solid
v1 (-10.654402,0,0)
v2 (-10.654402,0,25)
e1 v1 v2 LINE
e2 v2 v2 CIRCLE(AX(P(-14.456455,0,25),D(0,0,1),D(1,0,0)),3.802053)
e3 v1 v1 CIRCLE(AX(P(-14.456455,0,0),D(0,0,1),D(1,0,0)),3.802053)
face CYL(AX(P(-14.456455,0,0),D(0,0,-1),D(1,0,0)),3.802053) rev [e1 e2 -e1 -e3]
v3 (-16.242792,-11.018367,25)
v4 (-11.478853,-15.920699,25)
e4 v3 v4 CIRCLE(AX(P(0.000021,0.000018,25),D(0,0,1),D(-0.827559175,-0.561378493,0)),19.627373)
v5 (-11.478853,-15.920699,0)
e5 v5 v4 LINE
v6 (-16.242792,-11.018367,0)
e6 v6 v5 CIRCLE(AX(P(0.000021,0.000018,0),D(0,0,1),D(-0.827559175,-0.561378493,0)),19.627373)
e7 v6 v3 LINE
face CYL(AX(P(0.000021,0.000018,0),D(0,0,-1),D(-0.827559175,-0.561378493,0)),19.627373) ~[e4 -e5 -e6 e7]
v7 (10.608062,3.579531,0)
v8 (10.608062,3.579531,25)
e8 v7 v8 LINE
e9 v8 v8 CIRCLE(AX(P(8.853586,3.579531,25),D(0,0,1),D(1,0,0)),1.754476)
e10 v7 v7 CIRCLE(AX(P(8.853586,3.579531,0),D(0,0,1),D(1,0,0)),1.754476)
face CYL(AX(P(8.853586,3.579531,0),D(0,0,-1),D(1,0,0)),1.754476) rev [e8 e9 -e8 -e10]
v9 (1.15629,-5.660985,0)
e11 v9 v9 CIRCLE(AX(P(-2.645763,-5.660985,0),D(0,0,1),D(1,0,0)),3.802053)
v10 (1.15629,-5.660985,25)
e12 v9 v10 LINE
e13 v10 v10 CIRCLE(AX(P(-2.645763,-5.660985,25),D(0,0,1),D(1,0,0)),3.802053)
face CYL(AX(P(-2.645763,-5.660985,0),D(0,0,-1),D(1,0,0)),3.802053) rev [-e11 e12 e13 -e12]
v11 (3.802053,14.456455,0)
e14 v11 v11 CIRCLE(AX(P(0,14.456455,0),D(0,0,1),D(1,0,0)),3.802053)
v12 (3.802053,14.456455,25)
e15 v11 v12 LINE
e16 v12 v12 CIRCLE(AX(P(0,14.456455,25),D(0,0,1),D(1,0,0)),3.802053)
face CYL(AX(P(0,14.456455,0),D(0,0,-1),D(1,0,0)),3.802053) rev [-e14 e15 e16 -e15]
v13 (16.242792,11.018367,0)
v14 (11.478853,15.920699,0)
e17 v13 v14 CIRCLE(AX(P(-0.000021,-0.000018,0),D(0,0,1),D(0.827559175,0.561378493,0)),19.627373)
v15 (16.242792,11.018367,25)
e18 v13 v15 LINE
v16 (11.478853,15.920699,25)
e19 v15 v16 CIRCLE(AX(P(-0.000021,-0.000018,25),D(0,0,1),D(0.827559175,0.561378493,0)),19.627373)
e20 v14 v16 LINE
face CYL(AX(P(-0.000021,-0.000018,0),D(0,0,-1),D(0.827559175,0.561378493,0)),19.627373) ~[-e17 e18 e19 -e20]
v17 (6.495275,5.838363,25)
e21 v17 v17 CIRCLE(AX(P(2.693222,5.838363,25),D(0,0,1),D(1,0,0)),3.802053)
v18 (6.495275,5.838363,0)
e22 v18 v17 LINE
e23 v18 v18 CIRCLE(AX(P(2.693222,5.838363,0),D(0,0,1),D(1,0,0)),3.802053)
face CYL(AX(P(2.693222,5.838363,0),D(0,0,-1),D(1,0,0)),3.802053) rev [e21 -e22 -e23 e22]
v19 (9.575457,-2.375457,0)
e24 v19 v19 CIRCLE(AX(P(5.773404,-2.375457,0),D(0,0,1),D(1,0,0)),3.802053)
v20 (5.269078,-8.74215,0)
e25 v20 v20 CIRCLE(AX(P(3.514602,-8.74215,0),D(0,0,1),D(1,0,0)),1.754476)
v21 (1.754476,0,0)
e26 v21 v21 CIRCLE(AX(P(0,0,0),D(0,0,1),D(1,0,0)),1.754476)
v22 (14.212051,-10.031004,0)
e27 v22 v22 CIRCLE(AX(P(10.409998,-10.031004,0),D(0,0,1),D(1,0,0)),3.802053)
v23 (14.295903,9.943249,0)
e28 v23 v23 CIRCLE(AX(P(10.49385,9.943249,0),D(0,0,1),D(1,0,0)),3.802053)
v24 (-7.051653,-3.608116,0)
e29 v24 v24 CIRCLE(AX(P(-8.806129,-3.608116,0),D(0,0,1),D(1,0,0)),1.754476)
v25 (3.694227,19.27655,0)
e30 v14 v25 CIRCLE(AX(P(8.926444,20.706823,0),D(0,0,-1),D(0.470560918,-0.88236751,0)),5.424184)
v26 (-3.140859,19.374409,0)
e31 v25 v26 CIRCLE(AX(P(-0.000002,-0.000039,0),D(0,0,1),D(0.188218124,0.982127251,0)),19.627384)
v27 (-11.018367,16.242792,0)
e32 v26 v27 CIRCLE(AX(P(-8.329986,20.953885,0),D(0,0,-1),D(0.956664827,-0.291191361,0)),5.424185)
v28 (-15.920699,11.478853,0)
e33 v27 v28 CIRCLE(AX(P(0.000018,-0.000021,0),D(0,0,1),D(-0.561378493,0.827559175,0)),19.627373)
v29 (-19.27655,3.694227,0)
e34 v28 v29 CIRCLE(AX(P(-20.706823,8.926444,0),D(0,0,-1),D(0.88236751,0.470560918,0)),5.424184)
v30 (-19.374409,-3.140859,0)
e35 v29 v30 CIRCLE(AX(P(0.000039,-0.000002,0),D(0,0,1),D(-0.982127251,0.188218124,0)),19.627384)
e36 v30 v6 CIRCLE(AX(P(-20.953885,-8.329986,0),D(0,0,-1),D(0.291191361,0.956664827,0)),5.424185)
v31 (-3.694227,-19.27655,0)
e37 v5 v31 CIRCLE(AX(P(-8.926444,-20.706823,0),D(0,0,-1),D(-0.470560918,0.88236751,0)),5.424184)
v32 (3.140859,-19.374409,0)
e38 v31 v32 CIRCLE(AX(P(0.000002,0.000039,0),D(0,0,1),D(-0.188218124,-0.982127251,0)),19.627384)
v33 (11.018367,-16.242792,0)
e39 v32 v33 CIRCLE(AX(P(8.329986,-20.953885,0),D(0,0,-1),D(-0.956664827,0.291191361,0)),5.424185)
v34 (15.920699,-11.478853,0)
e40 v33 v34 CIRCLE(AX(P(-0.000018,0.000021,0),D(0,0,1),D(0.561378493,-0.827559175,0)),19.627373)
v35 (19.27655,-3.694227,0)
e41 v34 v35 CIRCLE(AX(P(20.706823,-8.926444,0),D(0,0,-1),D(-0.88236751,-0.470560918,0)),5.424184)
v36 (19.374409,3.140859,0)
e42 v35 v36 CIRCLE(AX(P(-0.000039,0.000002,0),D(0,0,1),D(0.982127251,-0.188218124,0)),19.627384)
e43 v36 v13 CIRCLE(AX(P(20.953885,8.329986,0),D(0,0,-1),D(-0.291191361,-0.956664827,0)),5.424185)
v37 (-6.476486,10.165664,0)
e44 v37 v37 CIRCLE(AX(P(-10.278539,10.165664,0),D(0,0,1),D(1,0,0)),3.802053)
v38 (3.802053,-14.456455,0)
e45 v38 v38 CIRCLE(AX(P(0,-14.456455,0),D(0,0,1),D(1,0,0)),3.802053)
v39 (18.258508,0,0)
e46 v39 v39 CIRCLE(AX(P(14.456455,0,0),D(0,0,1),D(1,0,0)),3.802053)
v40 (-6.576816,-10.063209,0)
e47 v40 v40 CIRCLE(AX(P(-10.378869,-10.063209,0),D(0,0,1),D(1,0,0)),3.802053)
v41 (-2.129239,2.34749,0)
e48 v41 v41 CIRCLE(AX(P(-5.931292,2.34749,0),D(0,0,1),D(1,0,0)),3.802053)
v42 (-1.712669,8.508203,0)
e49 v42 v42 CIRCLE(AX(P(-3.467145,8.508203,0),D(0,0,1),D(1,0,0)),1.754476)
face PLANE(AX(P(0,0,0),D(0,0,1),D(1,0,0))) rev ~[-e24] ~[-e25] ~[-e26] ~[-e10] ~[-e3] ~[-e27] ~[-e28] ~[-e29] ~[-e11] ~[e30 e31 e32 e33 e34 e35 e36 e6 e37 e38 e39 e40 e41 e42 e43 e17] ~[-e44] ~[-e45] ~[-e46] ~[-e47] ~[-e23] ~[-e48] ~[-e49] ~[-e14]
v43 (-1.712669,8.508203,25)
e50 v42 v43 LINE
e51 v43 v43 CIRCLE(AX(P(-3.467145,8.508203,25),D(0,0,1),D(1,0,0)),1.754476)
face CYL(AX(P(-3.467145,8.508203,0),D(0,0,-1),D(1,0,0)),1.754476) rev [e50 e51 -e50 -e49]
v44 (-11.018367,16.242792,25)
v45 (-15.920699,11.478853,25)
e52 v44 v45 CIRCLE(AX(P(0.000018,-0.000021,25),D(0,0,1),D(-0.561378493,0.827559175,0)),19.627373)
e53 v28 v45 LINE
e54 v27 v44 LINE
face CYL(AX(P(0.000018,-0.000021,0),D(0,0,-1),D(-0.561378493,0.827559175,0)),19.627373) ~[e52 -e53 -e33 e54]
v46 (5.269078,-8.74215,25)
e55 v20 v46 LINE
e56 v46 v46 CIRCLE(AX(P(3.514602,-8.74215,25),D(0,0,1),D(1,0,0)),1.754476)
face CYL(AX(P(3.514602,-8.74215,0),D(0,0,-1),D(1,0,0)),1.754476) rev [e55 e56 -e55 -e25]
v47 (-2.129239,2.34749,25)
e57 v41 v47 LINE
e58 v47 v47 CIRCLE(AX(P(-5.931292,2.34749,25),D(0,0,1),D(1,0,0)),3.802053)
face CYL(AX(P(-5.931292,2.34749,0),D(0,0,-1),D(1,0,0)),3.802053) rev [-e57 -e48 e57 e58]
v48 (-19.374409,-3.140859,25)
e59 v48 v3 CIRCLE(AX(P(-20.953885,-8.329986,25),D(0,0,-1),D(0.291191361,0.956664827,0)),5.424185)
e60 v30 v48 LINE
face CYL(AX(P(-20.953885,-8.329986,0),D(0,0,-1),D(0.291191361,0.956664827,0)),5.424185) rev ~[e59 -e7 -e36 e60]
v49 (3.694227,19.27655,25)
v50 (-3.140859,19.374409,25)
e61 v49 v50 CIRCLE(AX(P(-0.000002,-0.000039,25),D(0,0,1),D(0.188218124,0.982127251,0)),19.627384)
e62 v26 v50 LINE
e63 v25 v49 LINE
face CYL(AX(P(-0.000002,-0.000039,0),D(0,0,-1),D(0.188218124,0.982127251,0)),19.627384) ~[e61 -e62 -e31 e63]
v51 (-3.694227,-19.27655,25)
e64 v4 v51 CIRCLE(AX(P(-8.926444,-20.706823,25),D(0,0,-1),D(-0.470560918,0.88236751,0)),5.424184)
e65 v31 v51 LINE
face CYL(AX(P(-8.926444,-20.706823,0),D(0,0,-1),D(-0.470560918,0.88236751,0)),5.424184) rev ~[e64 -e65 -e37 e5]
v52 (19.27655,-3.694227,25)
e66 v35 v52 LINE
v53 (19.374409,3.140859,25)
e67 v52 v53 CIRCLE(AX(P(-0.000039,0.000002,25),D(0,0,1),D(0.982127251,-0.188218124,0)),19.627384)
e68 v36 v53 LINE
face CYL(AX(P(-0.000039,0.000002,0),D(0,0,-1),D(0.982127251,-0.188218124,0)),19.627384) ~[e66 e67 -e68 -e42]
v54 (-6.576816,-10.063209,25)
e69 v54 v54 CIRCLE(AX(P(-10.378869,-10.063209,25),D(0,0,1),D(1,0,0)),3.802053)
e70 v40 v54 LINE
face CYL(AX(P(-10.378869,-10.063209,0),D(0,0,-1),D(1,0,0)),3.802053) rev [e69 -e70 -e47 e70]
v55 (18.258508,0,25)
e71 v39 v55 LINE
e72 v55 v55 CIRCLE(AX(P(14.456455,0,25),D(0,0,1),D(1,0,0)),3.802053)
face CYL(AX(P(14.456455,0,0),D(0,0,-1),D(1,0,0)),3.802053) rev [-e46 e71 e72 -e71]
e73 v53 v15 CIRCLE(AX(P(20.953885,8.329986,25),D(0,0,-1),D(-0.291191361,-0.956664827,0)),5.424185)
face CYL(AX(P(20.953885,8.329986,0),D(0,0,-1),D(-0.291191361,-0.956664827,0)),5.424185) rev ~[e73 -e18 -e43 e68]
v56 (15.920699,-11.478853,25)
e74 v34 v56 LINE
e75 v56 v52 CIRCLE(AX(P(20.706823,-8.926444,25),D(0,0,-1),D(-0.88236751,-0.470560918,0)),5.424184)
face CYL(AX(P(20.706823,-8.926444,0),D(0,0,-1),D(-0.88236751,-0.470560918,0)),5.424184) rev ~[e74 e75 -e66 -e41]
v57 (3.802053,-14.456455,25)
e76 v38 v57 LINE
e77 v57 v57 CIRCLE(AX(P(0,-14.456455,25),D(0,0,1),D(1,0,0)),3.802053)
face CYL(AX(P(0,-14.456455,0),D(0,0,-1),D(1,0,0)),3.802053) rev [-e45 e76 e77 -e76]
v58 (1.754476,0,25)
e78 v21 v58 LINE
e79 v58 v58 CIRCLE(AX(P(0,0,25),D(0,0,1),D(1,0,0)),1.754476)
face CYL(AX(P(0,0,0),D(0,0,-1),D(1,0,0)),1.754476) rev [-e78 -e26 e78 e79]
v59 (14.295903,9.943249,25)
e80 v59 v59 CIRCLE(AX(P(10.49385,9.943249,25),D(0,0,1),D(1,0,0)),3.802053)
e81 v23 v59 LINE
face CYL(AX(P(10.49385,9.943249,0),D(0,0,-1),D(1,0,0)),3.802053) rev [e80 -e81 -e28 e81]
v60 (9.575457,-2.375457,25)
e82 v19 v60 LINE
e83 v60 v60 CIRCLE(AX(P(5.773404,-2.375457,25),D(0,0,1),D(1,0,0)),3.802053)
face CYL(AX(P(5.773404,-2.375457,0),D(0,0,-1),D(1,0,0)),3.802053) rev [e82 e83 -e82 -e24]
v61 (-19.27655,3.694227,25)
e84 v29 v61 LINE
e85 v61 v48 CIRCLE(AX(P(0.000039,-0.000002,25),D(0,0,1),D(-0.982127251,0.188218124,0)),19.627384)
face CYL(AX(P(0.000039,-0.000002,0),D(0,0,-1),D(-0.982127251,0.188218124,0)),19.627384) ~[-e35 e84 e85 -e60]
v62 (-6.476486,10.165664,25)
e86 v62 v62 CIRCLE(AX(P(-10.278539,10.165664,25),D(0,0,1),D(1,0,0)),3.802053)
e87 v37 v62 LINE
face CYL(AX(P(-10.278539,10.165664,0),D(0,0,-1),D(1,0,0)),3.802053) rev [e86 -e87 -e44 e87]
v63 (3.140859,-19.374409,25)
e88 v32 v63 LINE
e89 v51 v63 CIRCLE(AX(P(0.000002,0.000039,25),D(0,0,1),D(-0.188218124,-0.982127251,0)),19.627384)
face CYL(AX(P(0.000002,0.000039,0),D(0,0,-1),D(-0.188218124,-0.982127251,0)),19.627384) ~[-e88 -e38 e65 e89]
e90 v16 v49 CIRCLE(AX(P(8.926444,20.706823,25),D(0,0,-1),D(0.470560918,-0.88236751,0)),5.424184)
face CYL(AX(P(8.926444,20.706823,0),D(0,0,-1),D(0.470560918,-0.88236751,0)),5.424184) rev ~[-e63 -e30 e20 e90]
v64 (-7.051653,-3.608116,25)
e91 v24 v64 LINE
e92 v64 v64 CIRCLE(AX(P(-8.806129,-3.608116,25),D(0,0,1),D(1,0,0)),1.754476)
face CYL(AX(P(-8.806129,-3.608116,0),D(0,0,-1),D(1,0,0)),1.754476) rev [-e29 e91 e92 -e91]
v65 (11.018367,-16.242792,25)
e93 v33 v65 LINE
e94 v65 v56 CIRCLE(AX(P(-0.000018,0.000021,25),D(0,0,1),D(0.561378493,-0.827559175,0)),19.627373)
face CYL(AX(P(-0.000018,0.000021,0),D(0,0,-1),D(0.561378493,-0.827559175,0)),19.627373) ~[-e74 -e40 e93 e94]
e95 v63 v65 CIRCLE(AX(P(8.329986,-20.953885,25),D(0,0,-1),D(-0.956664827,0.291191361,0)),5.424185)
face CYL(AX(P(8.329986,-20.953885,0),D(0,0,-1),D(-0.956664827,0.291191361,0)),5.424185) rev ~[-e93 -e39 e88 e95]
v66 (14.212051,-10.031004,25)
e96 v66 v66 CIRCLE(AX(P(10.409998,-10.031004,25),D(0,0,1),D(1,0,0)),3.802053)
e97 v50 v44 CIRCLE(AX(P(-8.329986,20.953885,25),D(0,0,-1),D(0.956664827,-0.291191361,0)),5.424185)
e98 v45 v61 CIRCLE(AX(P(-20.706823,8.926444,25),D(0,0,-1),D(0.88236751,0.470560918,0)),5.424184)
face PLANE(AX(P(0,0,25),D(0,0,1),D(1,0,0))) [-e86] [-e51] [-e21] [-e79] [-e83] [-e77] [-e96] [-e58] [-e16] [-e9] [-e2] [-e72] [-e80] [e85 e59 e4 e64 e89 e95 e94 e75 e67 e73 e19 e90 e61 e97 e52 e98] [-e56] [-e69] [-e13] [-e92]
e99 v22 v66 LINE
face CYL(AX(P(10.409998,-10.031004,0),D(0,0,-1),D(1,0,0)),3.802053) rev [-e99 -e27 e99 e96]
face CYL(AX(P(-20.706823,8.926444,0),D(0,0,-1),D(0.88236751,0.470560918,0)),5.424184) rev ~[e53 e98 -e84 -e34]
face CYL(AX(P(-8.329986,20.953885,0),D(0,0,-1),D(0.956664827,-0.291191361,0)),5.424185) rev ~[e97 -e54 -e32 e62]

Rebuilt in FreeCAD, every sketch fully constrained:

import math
import FreeCAD as App
import Part
import Sketcher
from FreeCAD import Vector
Q = App.Units.Quantity

doc = App.newDocument("Part")
body = doc.addObject("PartDesign::Body", "Body")

sketch1 = doc.addObject("Sketcher::SketchObject", "Sketch")
body.addObject(sketch1)
sketch1.AttachmentSupport = (doc.XY_Plane, [""])
sketch1.MapMode = "FlatFace"
sketch1.addGeometry([
    Part.ArcOfCircle(Part.Circle(Vector(8.926444, 20.706823, 0), Vector(0, 0, 1), 5.424184), math.radians(-164.711204), math.radians(-61.929287)),
    Part.ArcOfCircle(Part.Circle(Vector(-0.000002, -0.000039, 0), Vector(0, 0, 1), 19.627384), math.radians(79.151186), math.radians(99.208301)),
    Part.ArcOfCircle(Part.Circle(Vector(-8.329986, 20.953885, 0), Vector(0, 0, 1), 5.424185), math.radians(-119.7112), math.radians(-16.929295)),
    Part.ArcOfCircle(Part.Circle(Vector(0.000018, -0.000021, 0), Vector(0, 0, 1), 19.627373), math.radians(124.151183), math.radians(144.208309)),
    Part.ArcOfCircle(Part.Circle(Vector(-20.706823, 8.926444, 0), Vector(0, 0, 1), 5.424184), math.radians(-74.711204), math.radians(28.070713)),
    Part.ArcOfCircle(Part.Circle(Vector(0.000039, -0.000002, 0), Vector(0, 0, 1), 19.627384), math.radians(169.151186), math.radians(189.208301)),
    Part.ArcOfCircle(Part.Circle(Vector(-20.953885, -8.329986, 0), Vector(0, 0, 1), 5.424185), math.radians(-29.7112), math.radians(73.070705)),
    Part.ArcOfCircle(Part.Circle(Vector(0.000021, 0.000018, 0), Vector(0, 0, 1), 19.627373), math.radians(-145.848817), math.radians(-125.791691)),
    Part.ArcOfCircle(Part.Circle(Vector(-8.926444, -20.706823, 0), Vector(0, 0, 1), 5.424184), math.radians(15.288796), math.radians(118.070713)),
    Part.ArcOfCircle(Part.Circle(Vector(0.000002, 0.000039, 0), Vector(0, 0, 1), 19.627384), math.radians(-100.848814), math.radians(-80.791699)),
    Part.ArcOfCircle(Part.Circle(Vector(8.329986, -20.953885, 0), Vector(0, 0, 1), 5.424185), math.radians(60.2888), math.radians(163.070705)),
    Part.ArcOfCircle(Part.Circle(Vector(-0.000018, 0.000021, 0), Vector(0, 0, 1), 19.627373), math.radians(-55.848817), math.radians(-35.791691)),
    Part.ArcOfCircle(Part.Circle(Vector(20.706823, -8.926444, 0), Vector(0, 0, 1), 5.424184), math.radians(105.288796), math.radians(208.070713)),
    Part.ArcOfCircle(Part.Circle(Vector(-0.000039, 0.000002, 0), Vector(0, 0, 1), 19.627384), math.radians(-10.848814), math.radians(9.208301)),
    Part.ArcOfCircle(Part.Circle(Vector(20.953885, 8.329986, 0), Vector(0, 0, 1), 5.424185), math.radians(150.2888), math.radians(253.070705)),
    Part.ArcOfCircle(Part.Circle(Vector(-0.000021, -0.000018, 0), Vector(0, 0, 1), 19.627373), math.radians(34.151183), math.radians(54.208309)),
    Part.Circle(Vector(-10.378869, -10.063209, 0), Vector(0, 0, 1), 3.802053),
    Part.Circle(Vector(-2.645763, -5.660985, 0), Vector(0, 0, 1), 3.802053),
    Part.Circle(Vector(-8.806129, -3.608116, 0), Vector(0, 0, 1), 1.754476),
    Part.Circle(Vector(0, -14.456455, 0), Vector(0, 0, 1), 3.802053),
    Part.Circle(Vector(10.409998, -10.031004, 0), Vector(0, 0, 1), 3.802053),
    Part.Circle(Vector(3.514602, -8.74215, 0), Vector(0, 0, 1), 1.754476),
    Part.Circle(Vector(5.773404, -2.375457, 0), Vector(0, 0, 1), 3.802053),
    Part.Circle(Vector(-14.456455, 0, 0), Vector(0, 0, 1), 3.802053),
    Part.Circle(Vector(-5.931292, 2.34749, 0), Vector(0, 0, 1), 3.802053),
    Part.Circle(Vector(-3.467145, 8.508203, 0), Vector(0, 0, 1), 1.754476),
    Part.Circle(Vector(-10.278539, 10.165664, 0), Vector(0, 0, 1), 3.802053),
    Part.Circle(Vector(0, 0, 0), Vector(0, 0, 1), 1.754476),
    Part.Circle(Vector(8.853586, 3.579531, 0), Vector(0, 0, 1), 1.754476),
    Part.Circle(Vector(2.693222, 5.838363, 0), Vector(0, 0, 1), 3.802053),
    Part.Circle(Vector(14.456455, 0, 0), Vector(0, 0, 1), 3.802053),
    Part.Circle(Vector(0, 14.456455, 0), Vector(0, 0, 1), 3.802053),
    Part.Circle(Vector(10.49385, 9.943249, 0), Vector(0, 0, 1), 3.802053),
], False)
sketch1.addConstraint([
    Sketcher.Constraint("Coincident", 0, 1, 1, 1),
    Sketcher.Constraint("Coincident", 1, 2, 2, 2),
    Sketcher.Constraint("Coincident", 2, 1, 3, 1),
    Sketcher.Constraint("Coincident", 3, 2, 4, 2),
    Sketcher.Constraint("Coincident", 4, 1, 5, 1),
    Sketcher.Constraint("Coincident", 5, 2, 6, 2),
    Sketcher.Constraint("Coincident", 6, 1, 7, 1),
    Sketcher.Constraint("Coincident", 7, 2, 8, 2),
    Sketcher.Constraint("Coincident", 8, 1, 9, 1),
    Sketcher.Constraint("Coincident", 9, 2, 10, 2),
    Sketcher.Constraint("Coincident", 10, 1, 11, 1),
    Sketcher.Constraint("Coincident", 11, 2, 12, 2),
    Sketcher.Constraint("Coincident", 12, 1, 13, 1),
    Sketcher.Constraint("Coincident", 13, 2, 14, 2),
    Sketcher.Constraint("Coincident", 14, 1, 15, 1),
    Sketcher.Constraint("Coincident", 15, 2, 0, 2),
    Sketcher.Constraint("Coincident", 27, 3, -1, 1),
    Sketcher.Constraint("Equal", 0, 2),
    Sketcher.Constraint("Equal", 2, 4),
    Sketcher.Constraint("Equal", 1, 5),
    Sketcher.Constraint("Equal", 4, 6),
    Sketcher.Constraint("Equal", 3, 7),
    Sketcher.Constraint("Equal", 6, 8),
    Sketcher.Constraint("Equal", 5, 9),
    Sketcher.Constraint("Equal", 8, 10),
    Sketcher.Constraint("Equal", 7, 11),
    Sketcher.Constraint("Equal", 10, 12),
    Sketcher.Constraint("Equal", 9, 13),
    Sketcher.Constraint("Equal", 12, 14),
    Sketcher.Constraint("Equal", 11, 15),
    Sketcher.Constraint("Equal", 16, 17),
    Sketcher.Constraint("Equal", 17, 19),
    Sketcher.Constraint("Equal", 19, 20),
    Sketcher.Constraint("Equal", 18, 21),
    Sketcher.Constraint("Equal", 20, 22),
    Sketcher.Constraint("Equal", 22, 23),
    Sketcher.Constraint("Equal", 23, 24),
    Sketcher.Constraint("Equal", 21, 25),
    Sketcher.Constraint("Equal", 24, 26),
    Sketcher.Constraint("Equal", 25, 27),
    Sketcher.Constraint("Equal", 27, 28),
    Sketcher.Constraint("Equal", 26, 29),
    Sketcher.Constraint("Equal", 29, 30),
    Sketcher.Constraint("Equal", 30, 31),
    Sketcher.Constraint("Equal", 31, 32),
    Sketcher.Constraint("Symmetric", 0, 3, 8, 3, -1, 1),
    Sketcher.Constraint("Symmetric", 1, 3, 9, 3, -1, 1),
    Sketcher.Constraint("Symmetric", 2, 3, 10, 3, -1, 1),
    Sketcher.Constraint("Symmetric", 3, 3, 11, 3, -1, 1),
    Sketcher.Constraint("Symmetric", 4, 3, 12, 3, -1, 1),
    Sketcher.Constraint("Symmetric", 5, 3, 13, 3, -1, 1),
    Sketcher.Constraint("Symmetric", 6, 3, 14, 3, -1, 1),
    Sketcher.Constraint("Symmetric", 7, 3, 15, 3, -1, 1),
    Sketcher.Constraint("Symmetric", 23, 3, 30, 3, -1, 1),
    Sketcher.Constraint("Symmetric", 19, 3, 31, 3, -1, 1),
    Sketcher.Constraint("Symmetric", 7, 3, 11, 3, -2),
    Sketcher.Constraint("PointOnObject", 19, 3, -2),
    Sketcher.Constraint("PointOnObject", 23, 3, -1),
    Sketcher.Constraint("Diameter", 18, Q("3.508952 mm")),
    Sketcher.Constraint("Diameter", 16, Q("7.604106 mm")),
    Sketcher.Constraint("Radius", 0, Q("5.424184 mm")),
    Sketcher.Constraint("Radius", 1, Q("19.627384 mm")),
    Sketcher.Constraint("Radius", 3, Q("19.627373 mm")),
    Sketcher.Constraint("DistanceY", 20, 3, 5, 3, Q("10.031002 mm")),
    Sketcher.Constraint("DistanceX", -1, 1, 21, 3, Q("3.514602 mm")),
    Sketcher.Constraint("DistanceX", 3, 2, -1, 1, Q("15.920699 mm")),
    Sketcher.Constraint("DistanceY", 7, 2, -1, 1, Q("15.920699 mm")),
    Sketcher.Constraint("DistanceX", 6, 3, 2, 3, Q("12.623899 mm")),
    Sketcher.Constraint("DistanceY", 13, 3, 25, 3, Q("8.508201 mm")),
    Sketcher.Constraint("DistanceX", 7, 3, 29, 3, Q("2.693201 mm")),
    Sketcher.Constraint("DistanceY", 32, 3, 0, 1, Q("9.333301 mm")),
    Sketcher.Constraint("DistanceX", 20, 3, 11, 2, Q("5.510701 mm")),
    Sketcher.Constraint("DistanceX", 16, 3, -1, 1, Q("10.378869 mm")),
    Sketcher.Constraint("DistanceY", 16, 3, -1, 1, Q("10.063209 mm")),
    Sketcher.Constraint("DistanceX", 18, 3, -1, 1, Q("8.806129 mm")),
    Sketcher.Constraint("DistanceY", 21, 3, -1, 1, Q("8.74215 mm")),
    Sketcher.Constraint("DistanceY", -1, 1, 24, 3, Q("2.34749 mm")),
    Sketcher.Constraint("DistanceX", 26, 3, -1, 1, Q("10.278539 mm")),
    Sketcher.Constraint("DistanceY", -1, 1, 28, 3, Q("3.579531 mm")),
    Sketcher.Constraint("DistanceX", -1, 1, 29, 3, Q("2.693222 mm")),
    Sketcher.Constraint("DistanceX", -1, 1, 32, 3, Q("10.49385 mm")),
    Sketcher.Constraint("DistanceY", -1, 1, 32, 3, Q("9.943249 mm")),
    Sketcher.Constraint("DistanceX", 1, 2, -1, 1, Q("3.140859 mm")),
    Sketcher.Constraint("DistanceY", -1, 1, 1, 2, Q("19.374409 mm")),
    Sketcher.Constraint("DistanceY", -1, 1, 2, 1, Q("16.242792 mm")),
    Sketcher.Constraint("DistanceX", 4, 1, -1, 1, Q("19.27655 mm")),
    Sketcher.Constraint("DistanceX", 5, 2, -1, 1, Q("19.374409 mm")),
    Sketcher.Constraint("DistanceY", 5, 2, -1, 1, Q("3.140859 mm")),
    Sketcher.Constraint("DistanceX", 6, 1, -1, 1, Q("16.242792 mm")),
    Sketcher.Constraint("DistanceX", 2, 3, 0, 3, Q("17.25643 mm")),
    Sketcher.Constraint("DistanceY", 4, 3, 2, 3, Q("12.027441 mm")),
    Sketcher.Constraint("DistanceX", 17, 3, 1, 3, Q("2.645761 mm")),
    Sketcher.Constraint("DistanceY", 17, 3, 18, 3, Q("2.052869 mm")),
    Sketcher.Constraint("DistanceY", 18, 3, 13, 3, Q("3.608118 mm")),
    Sketcher.Constraint("DistanceY", 19, 3, 17, 3, Q("8.79547 mm")),
    Sketcher.Constraint("DistanceY", 22, 3, 15, 3, Q("2.375439 mm")),
    Sketcher.Constraint("DistanceX", 6, 3, 23, 3, Q("6.49743 mm")),
    Sketcher.Constraint("DistanceX", 24, 3, 15, 3, Q("5.931271 mm")),
    Sketcher.Constraint("DistanceY", 25, 3, 26, 3, Q("1.657461 mm")),
    Sketcher.Constraint("DistanceX", 22, 3, 28, 3, Q("3.080182 mm")),
    Sketcher.Constraint("DistanceX", 28, 3, 30, 3, Q("5.602869 mm")),
    Sketcher.Constraint("DistanceX", 25, 3, -1, 1, Q("3.467145 mm")),
    Sketcher.Constraint("DistanceY", -1, 1, 29, 3, Q("5.838363 mm")),
])
pad1 = doc.addObject("PartDesign::Pad", "Pad")
body.addObject(pad1)
pad1.Profile = sketch1
pad1.Length = 25

doc.recompute()
